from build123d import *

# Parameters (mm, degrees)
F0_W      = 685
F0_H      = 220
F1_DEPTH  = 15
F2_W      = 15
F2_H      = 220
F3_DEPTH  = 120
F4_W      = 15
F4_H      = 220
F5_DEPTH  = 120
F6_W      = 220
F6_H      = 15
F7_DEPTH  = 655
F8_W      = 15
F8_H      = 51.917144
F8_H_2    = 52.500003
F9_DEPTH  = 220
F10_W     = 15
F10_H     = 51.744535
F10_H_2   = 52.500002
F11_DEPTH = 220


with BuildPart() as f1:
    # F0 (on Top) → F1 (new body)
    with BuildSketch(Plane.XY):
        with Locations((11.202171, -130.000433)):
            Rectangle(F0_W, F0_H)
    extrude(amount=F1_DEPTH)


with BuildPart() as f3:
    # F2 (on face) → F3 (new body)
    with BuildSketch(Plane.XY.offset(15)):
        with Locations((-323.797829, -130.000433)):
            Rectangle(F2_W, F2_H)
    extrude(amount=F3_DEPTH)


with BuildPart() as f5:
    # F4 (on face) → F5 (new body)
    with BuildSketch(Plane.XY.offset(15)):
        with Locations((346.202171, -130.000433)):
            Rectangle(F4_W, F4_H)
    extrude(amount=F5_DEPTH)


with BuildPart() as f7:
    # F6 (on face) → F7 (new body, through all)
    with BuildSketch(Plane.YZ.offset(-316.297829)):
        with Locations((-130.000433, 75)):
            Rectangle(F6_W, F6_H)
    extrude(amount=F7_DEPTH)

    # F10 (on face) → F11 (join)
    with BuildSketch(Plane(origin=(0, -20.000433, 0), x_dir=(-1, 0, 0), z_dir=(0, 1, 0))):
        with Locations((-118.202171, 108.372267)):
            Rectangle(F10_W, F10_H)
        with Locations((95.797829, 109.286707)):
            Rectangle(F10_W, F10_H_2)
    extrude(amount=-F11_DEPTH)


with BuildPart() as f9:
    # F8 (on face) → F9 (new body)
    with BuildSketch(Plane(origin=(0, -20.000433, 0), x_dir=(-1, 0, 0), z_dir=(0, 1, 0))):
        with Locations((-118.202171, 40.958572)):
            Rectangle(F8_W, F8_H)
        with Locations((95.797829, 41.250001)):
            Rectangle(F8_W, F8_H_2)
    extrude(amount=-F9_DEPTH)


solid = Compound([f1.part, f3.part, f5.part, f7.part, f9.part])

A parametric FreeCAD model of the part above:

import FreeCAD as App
import Part
import Sketcher

V = App.Vector
Q = App.Units.Quantity


def add_polygon(sketch, points):
    """Adds a closed chain of lines whose ends are joined by coincident constraints."""
    first, n = sketch.GeometryCount, len(points)
    for a, b in zip(points, points[1:] + points[:1]):
        sketch.addGeometry(Part.LineSegment(App.Vector(*a, 0), App.Vector(*b, 0)), False)
    for i in range(n):
        sketch.addConstraint(Sketcher.Constraint("Coincident", first + i, 2, first + (i + 1) % n, 1))

doc = App.newDocument("Part")
body = doc.addObject("PartDesign::Body", "Body")

# Sketch on XY plane
sketch1 = body.newObject("Sketcher::SketchObject", "Sketch")
sketch1.AttachmentSupport = (doc.getObject("XY_Plane"), [""])
sketch1.MapMode = "FlatFace"
add_polygon(sketch1, [(-331, -20), (-331, -240), (354, -240), (354, -20)])  # lines 0-3
sketch1.addConstraint([
    Sketcher.Constraint("Vertical", 0),
    Sketcher.Constraint("Horizontal", 1),
    Sketcher.Constraint("Vertical", 2),
    Sketcher.Constraint("Horizontal", 3),
    Sketcher.Constraint("DistanceX", 1, 1, 1, 2, Q("685 mm")),
    Sketcher.Constraint("DistanceY", 0, 2, 0, 1, Q("220 mm")),
    Sketcher.Constraint("DistanceX", 0, 2, -1, 1, Q("331.297829 mm")),
    Sketcher.Constraint("DistanceY", 0, 2, -1, 1, Q("240.000433 mm")),
])
pad1 = body.newObject("PartDesign::Pad", "Pad")
pad1.Profile = sketch1
pad1.Length = 15
body2 = doc.addObject("PartDesign::Body", "Body001")

# Sketch on XY plane
sketch2 = body2.newObject("Sketcher::SketchObject", "Sketch001")
sketch2.AttachmentSupport = (doc.getObject("XY_Plane001"), [""])
sketch2.MapMode = "FlatFace"
sketch2.AttachmentOffset = App.Placement(V(0, 0, 15), App.Rotation())
add_polygon(sketch2, [(-331, -20), (-331, -240), (-316, -240), (-316, -20)])  # lines 0-3
sketch2.addConstraint([
    Sketcher.Constraint("Vertical", 0),
    Sketcher.Constraint("Horizontal", 1),
    Sketcher.Constraint("Vertical", 2),
    Sketcher.Constraint("Horizontal", 3),
    Sketcher.Constraint("DistanceX", 1, 1, 1, 2, Q("15 mm")),
    Sketcher.Constraint("DistanceY", 0, 2, 0, 1, Q("220 mm")),
    Sketcher.Constraint("DistanceX", 0, 2, -1, 1, Q("331.297829 mm")),
    Sketcher.Constraint("DistanceY", 0, 2, -1, 1, Q("240.000433 mm")),
])
pad2 = body2.newObject("PartDesign::Pad", "Pad001")
pad2.Profile = sketch2
pad2.Length = 120
body3 = doc.addObject("PartDesign::Body", "Body002")

# Sketch on XY plane
sketch3 = body3.newObject("Sketcher::SketchObject", "Sketch002")
sketch3.AttachmentSupport = (doc.getObject("XY_Plane002"), [""])
sketch3.MapMode = "FlatFace"
sketch3.AttachmentOffset = App.Placement(V(0, 0, 15), App.Rotation())
add_polygon(sketch3, [(339, -20), (339, -240), (354, -240), (354, -20)])  # lines 0-3
sketch3.addConstraint([
    Sketcher.Constraint("Vertical", 0),
    Sketcher.Constraint("Horizontal", 1),
    Sketcher.Constraint("Vertical", 2),
    Sketcher.Constraint("Horizontal", 3),
    Sketcher.Constraint("DistanceX", 1, 1, 1, 2, Q("15 mm")),
    Sketcher.Constraint("DistanceY", 0, 2, 0, 1, Q("220 mm")),
    Sketcher.Constraint("DistanceX", -1, 1, 0, 2, Q("338.702171 mm")),
    Sketcher.Constraint("DistanceY", 0, 2, -1, 1, Q("240.000433 mm")),
])
pad3 = body3.newObject("PartDesign::Pad", "Pad002")
pad3.Profile = sketch3
pad3.Length = 120
body4 = doc.addObject("PartDesign::Body", "Body003")
body4.AllowCompound = True

# Sketch on YZ plane
sketch4 = body4.newObject("Sketcher::SketchObject", "Sketch003")
sketch4.AttachmentSupport = (doc.getObject("YZ_Plane003"), [""])
sketch4.MapMode = "FlatFace"
sketch4.AttachmentOffset = App.Placement(V(0, 0, -316.297829), App.Rotation())
add_polygon(sketch4, [(-240, 82), (-240, 68), (-20, 68), (-20, 82)])  # lines 0-3
sketch4.addConstraint([
    Sketcher.Constraint("Vertical", 0),
    Sketcher.Constraint("Horizontal", 1),
    Sketcher.Constraint("Vertical", 2),
    Sketcher.Constraint("Horizontal", 3),
    Sketcher.Constraint("DistanceX", 1, 1, 1, 2, Q("220 mm")),
    Sketcher.Constraint("DistanceY", 0, 2, 0, 1, Q("15 mm")),
    Sketcher.Constraint("DistanceY", -1, 1, 0, 2, Q("67.5 mm")),
    Sketcher.Constraint("DistanceX", 0, 2, -1, 1, Q("240.000433 mm")),
])
pad4 = body4.newObject("PartDesign::Pad", "Pad003")
pad4.Profile = sketch4
pad4.Length = 655

# Sketch on XZ plane
sketch5 = body4.newObject("Sketcher::SketchObject", "Sketch004")
sketch5.AttachmentSupport = (doc.getObject("XZ_Plane003"), [""])
sketch5.MapMode = "FlatFace"
sketch5.AttachmentOffset = App.Placement(V(0, 0, 20.000433), App.Rotation())
add_polygon(sketch5, [(126, 134), (126, 82), (111, 82), (111, 134)])  # lines 0-3
add_polygon(sketch5, [(-88, 136), (-88, 83), (-103, 83), (-103, 136)])  # lines 4-7
sketch5.addConstraint([
    Sketcher.Constraint("Vertical", 0),
    Sketcher.Constraint("Horizontal", 1),
    Sketcher.Constraint("Vertical", 2),
    Sketcher.Constraint("Horizontal", 3),
    Sketcher.Constraint("Vertical", 4),
    Sketcher.Constraint("Horizontal", 5),
    Sketcher.Constraint("Vertical", 6),
    Sketcher.Constraint("Horizontal", 7),
    Sketcher.Constraint("Equal", 3, 5),
    Sketcher.Constraint("DistanceX", 1, 2, 1, 1, Q("15 mm")),
    Sketcher.Constraint("DistanceX", 4, 2, 1, 2, Q("199 mm")),
    Sketcher.Constraint("DistanceY", -1, 1, 0, 2, Q("82.5 mm")),
    Sketcher.Constraint("DistanceY", 0, 2, 0, 1, Q("51.744535 mm")),
    Sketcher.Constraint("DistanceY", 4, 2, 4, 1, Q("52.500002 mm")),
    Sketcher.Constraint("DistanceX", -1, 1, 0, 2, Q("125.702171 mm")),
    Sketcher.Constraint("DistanceY", -1, 1, 6, 2, Q("135.536708 mm")),
])
pad5 = body4.newObject("PartDesign::Pad", "Pad004")
pad5.Profile = sketch5
pad5.Length = 220
body5 = doc.addObject("PartDesign::Body", "Body004")
body5.AllowCompound = True

# Sketch on XZ plane
sketch6 = body5.newObject("Sketcher::SketchObject", "Sketch005")
sketch6.AttachmentSupport = (doc.getObject("XZ_Plane004"), [""])
sketch6.MapMode = "FlatFace"
sketch6.AttachmentOffset = App.Placement(V(0, 0, 20.000433), App.Rotation())
add_polygon(sketch6, [(126, 67), (126, 15), (111, 15), (111, 67)])  # lines 0-3
add_polygon(sketch6, [(-88, 68), (-88, 15), (-103, 15), (-103, 68)])  # lines 4-7
sketch6.addConstraint([
    Sketcher.Constraint("Vertical", 0),
    Sketcher.Constraint("Horizontal", 1),
    Sketcher.Constraint("Vertical", 2),
    Sketcher.Constraint("Horizontal", 3),
    Sketcher.Constraint("Vertical", 4),
    Sketcher.Constraint("Horizontal", 5),
    Sketcher.Constraint("Vertical", 6),
    Sketcher.Constraint("Horizontal", 7),
    Sketcher.Constraint("Horizontal", 1, 2, 4, 2),
    Sketcher.Constraint("Equal", 3, 5),
    Sketcher.Constraint("DistanceX", 1, 2, 1, 1, Q("15 mm")),
    Sketcher.Constraint("DistanceY", -1, 1, 0, 2, Q("15 mm")),
    Sketcher.Constraint("DistanceX", 4, 2, 1, 2, Q("199 mm")),
    Sketcher.Constraint("DistanceY", 0, 2, 0, 1, Q("51.917144 mm")),
    Sketcher.Constraint("DistanceY", 4, 2, 4, 1, Q("52.500003 mm")),
    Sketcher.Constraint("DistanceX", -1, 1, 0, 2, Q("125.702171 mm")),
])
pad6 = body5.newObject("PartDesign::Pad", "Pad005")
pad6.Profile = sketch6
pad6.Length = 220

doc.recompute()
